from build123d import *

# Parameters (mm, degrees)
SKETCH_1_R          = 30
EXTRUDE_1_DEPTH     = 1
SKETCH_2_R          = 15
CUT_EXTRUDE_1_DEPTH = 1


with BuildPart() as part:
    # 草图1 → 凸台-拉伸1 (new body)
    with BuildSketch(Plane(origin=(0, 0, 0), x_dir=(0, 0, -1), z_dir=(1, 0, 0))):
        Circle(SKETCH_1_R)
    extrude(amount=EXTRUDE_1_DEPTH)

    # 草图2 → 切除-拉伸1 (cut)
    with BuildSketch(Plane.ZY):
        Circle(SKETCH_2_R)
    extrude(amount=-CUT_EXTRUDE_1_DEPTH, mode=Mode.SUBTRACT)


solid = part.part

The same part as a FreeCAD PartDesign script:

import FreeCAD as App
import Part
import Sketcher

V = App.Vector
Q = App.Units.Quantity

doc = App.newDocument("Part")
body = doc.addObject("PartDesign::Body", "Body")

# Sketch on YZ plane
sketch1 = doc.addObject("Sketcher::SketchObject", "Sketch")
body.addObject(sketch1)
sketch1.AttachmentSupport = (doc.YZ_Plane, [""])
sketch1.MapMode = "FlatFace"
sketch1.addGeometry(Part.Circle(V(0, 0, 0), V(0, 0, 1), 30), False)
sketch1.addConstraint([
    Sketcher.Constraint("Coincident", 0, 3, -1, 1),
    Sketcher.Constraint("Diameter", 0, Q("60 mm")),
])
pad1 = doc.addObject("PartDesign::Pad", "Pad")
body.addObject(pad1)
pad1.Profile = sketch1
pad1.Length = 1

# Sketch on YZ plane
sketch2 = doc.addObject("Sketcher::SketchObject", "Sketch001")
body.addObject(sketch2)
sketch2.AttachmentSupport = (doc.YZ_Plane, [""])
sketch2.MapMode = "FlatFace"
sketch2.addGeometry(Part.Circle(V(0, 0, 0), V(0, 0, 1), 15), False)
sketch2.addConstraint([
    Sketcher.Constraint("Coincident", 0, 3, -1, 1),
    Sketcher.Constraint("Diameter", 0, Q("30 mm")),
])
pocket1 = doc.addObject("PartDesign::Pocket", "Pocket")
body.addObject(pocket1)
pocket1.Profile = sketch2
pocket1.Length = 1
pocket1.Reversed = True

doc.recompute()
